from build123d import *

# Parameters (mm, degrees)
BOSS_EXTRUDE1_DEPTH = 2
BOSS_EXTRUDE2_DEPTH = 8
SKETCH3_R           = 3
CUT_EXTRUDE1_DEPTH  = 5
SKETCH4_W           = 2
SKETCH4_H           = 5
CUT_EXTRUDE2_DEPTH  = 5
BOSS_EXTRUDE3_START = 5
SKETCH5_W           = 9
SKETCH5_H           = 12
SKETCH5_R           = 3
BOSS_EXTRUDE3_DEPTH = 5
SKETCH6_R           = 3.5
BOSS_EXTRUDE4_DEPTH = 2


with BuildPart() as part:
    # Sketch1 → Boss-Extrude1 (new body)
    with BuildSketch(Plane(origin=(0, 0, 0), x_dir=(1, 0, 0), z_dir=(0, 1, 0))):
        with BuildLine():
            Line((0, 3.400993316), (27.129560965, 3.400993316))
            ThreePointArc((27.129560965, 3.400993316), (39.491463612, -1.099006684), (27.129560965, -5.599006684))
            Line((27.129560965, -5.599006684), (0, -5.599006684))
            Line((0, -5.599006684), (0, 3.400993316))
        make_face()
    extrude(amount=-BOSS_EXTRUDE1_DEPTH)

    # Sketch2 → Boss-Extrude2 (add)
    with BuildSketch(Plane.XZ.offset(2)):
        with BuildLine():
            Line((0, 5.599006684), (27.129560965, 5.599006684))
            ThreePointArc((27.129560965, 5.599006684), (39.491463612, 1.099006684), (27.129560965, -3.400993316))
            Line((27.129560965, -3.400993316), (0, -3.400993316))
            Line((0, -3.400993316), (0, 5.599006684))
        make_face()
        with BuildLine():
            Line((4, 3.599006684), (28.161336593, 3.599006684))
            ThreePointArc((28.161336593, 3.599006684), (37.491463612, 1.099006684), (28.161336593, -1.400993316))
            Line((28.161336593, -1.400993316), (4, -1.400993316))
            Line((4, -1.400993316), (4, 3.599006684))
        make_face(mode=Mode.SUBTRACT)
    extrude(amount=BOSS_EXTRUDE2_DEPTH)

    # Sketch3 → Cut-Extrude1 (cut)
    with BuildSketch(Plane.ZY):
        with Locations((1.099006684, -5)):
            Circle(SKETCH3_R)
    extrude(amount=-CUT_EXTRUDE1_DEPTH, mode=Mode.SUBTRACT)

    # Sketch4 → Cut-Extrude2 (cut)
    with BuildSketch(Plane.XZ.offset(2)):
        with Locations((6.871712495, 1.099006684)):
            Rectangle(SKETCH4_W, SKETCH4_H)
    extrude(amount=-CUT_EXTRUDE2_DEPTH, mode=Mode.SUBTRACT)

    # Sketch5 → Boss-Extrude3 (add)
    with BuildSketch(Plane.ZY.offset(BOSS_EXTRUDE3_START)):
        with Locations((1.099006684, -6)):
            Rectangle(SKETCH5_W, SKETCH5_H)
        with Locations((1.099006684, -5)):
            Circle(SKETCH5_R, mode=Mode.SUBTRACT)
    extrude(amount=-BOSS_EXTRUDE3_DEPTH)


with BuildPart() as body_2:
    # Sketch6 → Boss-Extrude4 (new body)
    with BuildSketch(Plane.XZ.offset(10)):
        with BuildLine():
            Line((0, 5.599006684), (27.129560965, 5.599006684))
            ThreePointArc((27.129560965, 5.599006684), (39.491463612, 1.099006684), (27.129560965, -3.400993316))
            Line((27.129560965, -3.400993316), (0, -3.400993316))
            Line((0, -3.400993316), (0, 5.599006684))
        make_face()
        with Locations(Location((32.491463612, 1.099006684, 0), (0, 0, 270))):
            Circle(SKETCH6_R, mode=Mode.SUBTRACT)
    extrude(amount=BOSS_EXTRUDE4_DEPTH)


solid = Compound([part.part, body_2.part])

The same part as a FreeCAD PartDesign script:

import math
import FreeCAD as App
import Part
import Sketcher
from FreeCAD import Vector
Q = App.Units.Quantity


def add_polygon(sketch, points):
    """Adds a closed chain of lines whose ends are joined by coincident constraints."""
    first, n = sketch.GeometryCount, len(points)
    for a, b in zip(points, points[1:] + points[:1]):
        sketch.addGeometry(Part.LineSegment(App.Vector(*a, 0), App.Vector(*b, 0)), False)
    for i in range(n):
        sketch.addConstraint(Sketcher.Constraint("Coincident", first + i, 2, first + (i + 1) % n, 1))

doc = App.newDocument("Part")
body = doc.addObject("PartDesign::Body", "Body")

# Sketch on XZ plane
sketch1 = body.newObject("Sketcher::SketchObject", "Sketch")
sketch1.AttachmentSupport = (doc.getObject("XZ_Plane"), [""])
sketch1.MapMode = "FlatFace"
sketch1.addGeometry([
    Part.LineSegment(Vector(27.129561, -3.400993, 0), Vector(0, -3.400993, 0)),
    Part.LineSegment(Vector(0, -3.400993, 0), Vector(0, 5.599007, 0)),
    Part.LineSegment(Vector(0, 5.599007, 0), Vector(27.129561, 5.599007, 0)),
    Part.ArcOfCircle(Part.Circle(Vector(32.491464, 1.099007, 0), Vector(0, 0, 1), 7), math.radians(-139.994799), math.radians(139.994799)),
], False)
sketch1.addConstraint([
    Sketcher.Constraint("Coincident", 0, 2, 1, 1),
    Sketcher.Constraint("Coincident", 1, 2, 2, 1),
    Sketcher.Constraint("Coincident", 2, 2, 3, 2),
    Sketcher.Constraint("Coincident", 3, 1, 0, 1),
    Sketcher.Constraint("Horizontal", 0),
    Sketcher.Constraint("Vertical", 1),
    Sketcher.Constraint("Horizontal", 2),
    Sketcher.Constraint("PointOnObject", 0, 2, -2),
    Sketcher.Constraint("Vertical", 2, 2, 3, 1),
    Sketcher.Constraint("Radius", 3, Q("7 mm")),
    Sketcher.Constraint("DistanceY", 1, 1, 1, 2, Q("9 mm")),
    Sketcher.Constraint("DistanceX", 0, 2, 0, 1, Q("27.129561 mm")),
    Sketcher.Constraint("DistanceY", -1, 1, 3, 3, Q("1.099007 mm")),
])
pad1 = body.newObject("PartDesign::Pad", "Pad")
pad1.Profile = sketch1
pad1.Length = 2

# Sketch on XZ plane
sketch2 = body.newObject("Sketcher::SketchObject", "Sketch001")
sketch2.AttachmentSupport = (doc.getObject("XZ_Plane"), [""])
sketch2.MapMode = "FlatFace"
sketch2.AttachmentOffset = App.Placement(Vector(0, 0, 2), App.Rotation())
sketch2.addGeometry([
    Part.LineSegment(Vector(27.129561, 5.599007, 0), Vector(0, 5.599007, 0)),  # 0
    Part.LineSegment(Vector(0, 5.599007, 0), Vector(0, -3.400993, 0)),  # 1
    Part.LineSegment(Vector(0, -3.400993, 0), Vector(27.129561, -3.400993, 0)),  # 2
    Part.ArcOfCircle(Part.Circle(Vector(32.491464, 1.099007, 0), Vector(0, 0, 1), 7), math.radians(-139.994799), math.radians(139.994799)),  # 3
    Part.LineSegment(Vector(4, 3.599007, 0), Vector(28.161337, 3.599007, 0)),  # 4
    Part.ArcOfCircle(Part.Circle(Vector(32.491464, 1.099007, 0), Vector(0, 0, 1), 5), math.radians(-150), math.radians(150)),  # 5
    Part.LineSegment(Vector(28.161337, -1.400993, 0), Vector(4, -1.400993, 0)),  # 6
    Part.LineSegment(Vector(4, -1.400993, 0), Vector(4, 3.599007, 0)),  # 7
], False)
sketch2.addConstraint([
    Sketcher.Constraint("Coincident", 0, 2, 1, 1),
    Sketcher.Constraint("Coincident", 1, 2, 2, 1),
    Sketcher.Constraint("Coincident", 2, 2, 3, 1),
    Sketcher.Constraint("Coincident", 3, 2, 0, 1),
    Sketcher.Constraint("Coincident", 4, 2, 5, 2),
    Sketcher.Constraint("Coincident", 5, 1, 6, 1),
    Sketcher.Constraint("Coincident", 6, 2, 7, 1),
    Sketcher.Constraint("Coincident", 7, 2, 4, 1),
    Sketcher.Constraint("Horizontal", 0),
    Sketcher.Constraint("Vertical", 1),
    Sketcher.Constraint("Horizontal", 2),
    Sketcher.Constraint("Horizontal", 4),
    Sketcher.Constraint("Horizontal", 6),
    Sketcher.Constraint("Vertical", 7),
    Sketcher.Constraint("Coincident", 5, 3, 3, 3),
    Sketcher.Constraint("PointOnObject", 0, 2, -2),
    Sketcher.Constraint("Vertical", 2, 2, 3, 2),
    Sketcher.Constraint("Vertical", 4, 2, 5, 1),
    Sketcher.Constraint("Radius", 3, Q("7 mm")),
    Sketcher.Constraint("Radius", 5, Q("5 mm")),
    Sketcher.Constraint("DistanceY", 1, 2, 1, 1, Q("9 mm")),
    Sketcher.Constraint("DistanceY", 7, 1, 7, 2, Q("5 mm")),
    Sketcher.Constraint("DistanceX", -1, 1, 6, 2, Q("4 mm")),
    Sketcher.Constraint("DistanceX", 0, 2, 0, 1, Q("27.129561 mm")),
    Sketcher.Constraint("DistanceY", -1, 1, 3, 3, Q("1.099007 mm")),
])
pad2 = body.newObject("PartDesign::Pad", "Pad001")
pad2.Profile = sketch2
pad2.Length = 8

# Sketch on YZ plane
sketch3 = body.newObject("Sketcher::SketchObject", "Sketch002")
sketch3.AttachmentSupport = (doc.getObject("YZ_Plane"), [""])
sketch3.MapMode = "FlatFace"
sketch3.addGeometry(Part.Circle(Vector(-5, 1.099007, 0), Vector(0, 0, 1), 3), False)
sketch3.addConstraint([
    Sketcher.Constraint("Diameter", 0, Q("6 mm")),
    Sketcher.Constraint("DistanceX", 0, 3, -1, 1, Q("5 mm")),
    Sketcher.Constraint("DistanceY", -1, 1, 0, 3, Q("1.099007 mm")),
])
pocket1 = body.newObject("PartDesign::Pocket", "Pocket")
pocket1.Profile = sketch3
pocket1.Length = 5
pocket1.Reversed = True

# Sketch on XZ plane
sketch4 = body.newObject("Sketcher::SketchObject", "Sketch003")
sketch4.AttachmentSupport = (doc.getObject("XZ_Plane"), [""])
sketch4.MapMode = "FlatFace"
sketch4.AttachmentOffset = App.Placement(Vector(0, 0, 2), App.Rotation())
add_polygon(sketch4, [(5.871712, 3.599007), (5.871712, -1.400993), (7.871712, -1.400993), (7.871712, 3.599007)])  # lines 0-3
sketch4.addConstraint([
    Sketcher.Constraint("Vertical", 0),
    Sketcher.Constraint("Horizontal", 1),
    Sketcher.Constraint("Vertical", 2),
    Sketcher.Constraint("Horizontal", 3),
    Sketcher.Constraint("DistanceX", 1, 1, 1, 2, Q("2 mm")),
    Sketcher.Constraint("DistanceY", 0, 2, 0, 1, Q("5 mm")),
    Sketcher.Constraint("DistanceX", -1, 1, 0, 2, Q("5.871712 mm")),
    Sketcher.Constraint("DistanceY", 0, 2, -1, 1, Q("1.400993 mm")),
])
pocket2 = body.newObject("PartDesign::Pocket", "Pocket001")
pocket2.Profile = sketch4
pocket2.Length = 5

# Sketch on YZ plane
sketch5 = body.newObject("Sketcher::SketchObject", "Sketch004")
sketch5.AttachmentSupport = (doc.getObject("YZ_Plane"), [""])
sketch5.MapMode = "FlatFace"
sketch5.AttachmentOffset = App.Placement(Vector(0, 0, -5), App.Rotation())
add_polygon(sketch5, [(0, -3.400993), (-12, -3.400993), (-12, 5.599007), (0, 5.599007)])  # lines 0-3
sketch5.addGeometry(Part.Circle(Vector(-5, 1.099007, 0), Vector(0, 0, 1), 3), False)  # 4
sketch5.addConstraint([
    Sketcher.Constraint("Horizontal", 0),
    Sketcher.Constraint("Vertical", 1),
    Sketcher.Constraint("Horizontal", 2),
    Sketcher.Constraint("Vertical", 3),
    Sketcher.Constraint("PointOnObject", 2, 2, -2),
    Sketcher.Constraint("Diameter", 4, Q("6 mm")),
    Sketcher.Constraint("DistanceX", 0, 2, 0, 1, Q("12 mm")),
    Sketcher.Constraint("DistanceY", 1, 1, 1, 2, Q("9 mm")),
    Sketcher.Constraint("DistanceX", 4, 3, -1, 1, Q("5 mm")),
    Sketcher.Constraint("DistanceY", 0, 2, 4, 3, Q("4.5 mm")),
    Sketcher.Constraint("DistanceY", -1, 1, 4, 3, Q("1.099007 mm")),
])
pad3 = body.newObject("PartDesign::Pad", "Pad002")
pad3.Profile = sketch5
pad3.Length = 5
body2 = doc.addObject("PartDesign::Body", "Body001")

# Sketch on XZ plane
sketch6 = body2.newObject("Sketcher::SketchObject", "Sketch005")
sketch6.AttachmentSupport = (doc.getObject("XZ_Plane001"), [""])
sketch6.MapMode = "FlatFace"
sketch6.AttachmentOffset = App.Placement(Vector(0, 0, 10), App.Rotation())
sketch6.addGeometry([
    Part.LineSegment(Vector(27.129561, 5.599007, 0), Vector(0, 5.599007, 0)),  # 0
    Part.LineSegment(Vector(0, 5.599007, 0), Vector(0, -3.400993, 0)),  # 1
    Part.LineSegment(Vector(0, -3.400993, 0), Vector(27.129561, -3.400993, 0)),  # 2
    Part.ArcOfCircle(Part.Circle(Vector(32.491464, 1.099007, 0), Vector(0, 0, 1), 7), math.radians(-139.994799), math.radians(139.994799)),  # 3
    Part.Circle(Vector(32.491464, 1.099007, 0), Vector(0, 0, 1), 3.5),  # 4
], False)
sketch6.addConstraint([
    Sketcher.Constraint("Coincident", 0, 2, 1, 1),
    Sketcher.Constraint("Coincident", 1, 2, 2, 1),
    Sketcher.Constraint("Coincident", 2, 2, 3, 1),
    Sketcher.Constraint("Coincident", 3, 2, 0, 1),
    Sketcher.Constraint("Horizontal", 0),
    Sketcher.Constraint("Vertical", 1),
    Sketcher.Constraint("Horizontal", 2),
    Sketcher.Constraint("Coincident", 4, 3, 3, 3),
    Sketcher.Constraint("PointOnObject", 0, 2, -2),
    Sketcher.Constraint("Vertical", 2, 2, 3, 2),
    Sketcher.Constraint("Diameter", 4, Q("7 mm")),
    Sketcher.Constraint("Radius", 3, Q("7 mm")),
    Sketcher.Constraint("DistanceY", 1, 2, 1, 1, Q("9 mm")),
    Sketcher.Constraint("DistanceX", 0, 2, 0, 1, Q("27.129561 mm")),
    Sketcher.Constraint("DistanceY", -1, 1, 3, 3, Q("1.099007 mm")),
])
pad4 = body2.newObject("PartDesign::Pad", "Pad003")
pad4.Profile = sketch6
pad4.Length = 2

doc.recompute()
